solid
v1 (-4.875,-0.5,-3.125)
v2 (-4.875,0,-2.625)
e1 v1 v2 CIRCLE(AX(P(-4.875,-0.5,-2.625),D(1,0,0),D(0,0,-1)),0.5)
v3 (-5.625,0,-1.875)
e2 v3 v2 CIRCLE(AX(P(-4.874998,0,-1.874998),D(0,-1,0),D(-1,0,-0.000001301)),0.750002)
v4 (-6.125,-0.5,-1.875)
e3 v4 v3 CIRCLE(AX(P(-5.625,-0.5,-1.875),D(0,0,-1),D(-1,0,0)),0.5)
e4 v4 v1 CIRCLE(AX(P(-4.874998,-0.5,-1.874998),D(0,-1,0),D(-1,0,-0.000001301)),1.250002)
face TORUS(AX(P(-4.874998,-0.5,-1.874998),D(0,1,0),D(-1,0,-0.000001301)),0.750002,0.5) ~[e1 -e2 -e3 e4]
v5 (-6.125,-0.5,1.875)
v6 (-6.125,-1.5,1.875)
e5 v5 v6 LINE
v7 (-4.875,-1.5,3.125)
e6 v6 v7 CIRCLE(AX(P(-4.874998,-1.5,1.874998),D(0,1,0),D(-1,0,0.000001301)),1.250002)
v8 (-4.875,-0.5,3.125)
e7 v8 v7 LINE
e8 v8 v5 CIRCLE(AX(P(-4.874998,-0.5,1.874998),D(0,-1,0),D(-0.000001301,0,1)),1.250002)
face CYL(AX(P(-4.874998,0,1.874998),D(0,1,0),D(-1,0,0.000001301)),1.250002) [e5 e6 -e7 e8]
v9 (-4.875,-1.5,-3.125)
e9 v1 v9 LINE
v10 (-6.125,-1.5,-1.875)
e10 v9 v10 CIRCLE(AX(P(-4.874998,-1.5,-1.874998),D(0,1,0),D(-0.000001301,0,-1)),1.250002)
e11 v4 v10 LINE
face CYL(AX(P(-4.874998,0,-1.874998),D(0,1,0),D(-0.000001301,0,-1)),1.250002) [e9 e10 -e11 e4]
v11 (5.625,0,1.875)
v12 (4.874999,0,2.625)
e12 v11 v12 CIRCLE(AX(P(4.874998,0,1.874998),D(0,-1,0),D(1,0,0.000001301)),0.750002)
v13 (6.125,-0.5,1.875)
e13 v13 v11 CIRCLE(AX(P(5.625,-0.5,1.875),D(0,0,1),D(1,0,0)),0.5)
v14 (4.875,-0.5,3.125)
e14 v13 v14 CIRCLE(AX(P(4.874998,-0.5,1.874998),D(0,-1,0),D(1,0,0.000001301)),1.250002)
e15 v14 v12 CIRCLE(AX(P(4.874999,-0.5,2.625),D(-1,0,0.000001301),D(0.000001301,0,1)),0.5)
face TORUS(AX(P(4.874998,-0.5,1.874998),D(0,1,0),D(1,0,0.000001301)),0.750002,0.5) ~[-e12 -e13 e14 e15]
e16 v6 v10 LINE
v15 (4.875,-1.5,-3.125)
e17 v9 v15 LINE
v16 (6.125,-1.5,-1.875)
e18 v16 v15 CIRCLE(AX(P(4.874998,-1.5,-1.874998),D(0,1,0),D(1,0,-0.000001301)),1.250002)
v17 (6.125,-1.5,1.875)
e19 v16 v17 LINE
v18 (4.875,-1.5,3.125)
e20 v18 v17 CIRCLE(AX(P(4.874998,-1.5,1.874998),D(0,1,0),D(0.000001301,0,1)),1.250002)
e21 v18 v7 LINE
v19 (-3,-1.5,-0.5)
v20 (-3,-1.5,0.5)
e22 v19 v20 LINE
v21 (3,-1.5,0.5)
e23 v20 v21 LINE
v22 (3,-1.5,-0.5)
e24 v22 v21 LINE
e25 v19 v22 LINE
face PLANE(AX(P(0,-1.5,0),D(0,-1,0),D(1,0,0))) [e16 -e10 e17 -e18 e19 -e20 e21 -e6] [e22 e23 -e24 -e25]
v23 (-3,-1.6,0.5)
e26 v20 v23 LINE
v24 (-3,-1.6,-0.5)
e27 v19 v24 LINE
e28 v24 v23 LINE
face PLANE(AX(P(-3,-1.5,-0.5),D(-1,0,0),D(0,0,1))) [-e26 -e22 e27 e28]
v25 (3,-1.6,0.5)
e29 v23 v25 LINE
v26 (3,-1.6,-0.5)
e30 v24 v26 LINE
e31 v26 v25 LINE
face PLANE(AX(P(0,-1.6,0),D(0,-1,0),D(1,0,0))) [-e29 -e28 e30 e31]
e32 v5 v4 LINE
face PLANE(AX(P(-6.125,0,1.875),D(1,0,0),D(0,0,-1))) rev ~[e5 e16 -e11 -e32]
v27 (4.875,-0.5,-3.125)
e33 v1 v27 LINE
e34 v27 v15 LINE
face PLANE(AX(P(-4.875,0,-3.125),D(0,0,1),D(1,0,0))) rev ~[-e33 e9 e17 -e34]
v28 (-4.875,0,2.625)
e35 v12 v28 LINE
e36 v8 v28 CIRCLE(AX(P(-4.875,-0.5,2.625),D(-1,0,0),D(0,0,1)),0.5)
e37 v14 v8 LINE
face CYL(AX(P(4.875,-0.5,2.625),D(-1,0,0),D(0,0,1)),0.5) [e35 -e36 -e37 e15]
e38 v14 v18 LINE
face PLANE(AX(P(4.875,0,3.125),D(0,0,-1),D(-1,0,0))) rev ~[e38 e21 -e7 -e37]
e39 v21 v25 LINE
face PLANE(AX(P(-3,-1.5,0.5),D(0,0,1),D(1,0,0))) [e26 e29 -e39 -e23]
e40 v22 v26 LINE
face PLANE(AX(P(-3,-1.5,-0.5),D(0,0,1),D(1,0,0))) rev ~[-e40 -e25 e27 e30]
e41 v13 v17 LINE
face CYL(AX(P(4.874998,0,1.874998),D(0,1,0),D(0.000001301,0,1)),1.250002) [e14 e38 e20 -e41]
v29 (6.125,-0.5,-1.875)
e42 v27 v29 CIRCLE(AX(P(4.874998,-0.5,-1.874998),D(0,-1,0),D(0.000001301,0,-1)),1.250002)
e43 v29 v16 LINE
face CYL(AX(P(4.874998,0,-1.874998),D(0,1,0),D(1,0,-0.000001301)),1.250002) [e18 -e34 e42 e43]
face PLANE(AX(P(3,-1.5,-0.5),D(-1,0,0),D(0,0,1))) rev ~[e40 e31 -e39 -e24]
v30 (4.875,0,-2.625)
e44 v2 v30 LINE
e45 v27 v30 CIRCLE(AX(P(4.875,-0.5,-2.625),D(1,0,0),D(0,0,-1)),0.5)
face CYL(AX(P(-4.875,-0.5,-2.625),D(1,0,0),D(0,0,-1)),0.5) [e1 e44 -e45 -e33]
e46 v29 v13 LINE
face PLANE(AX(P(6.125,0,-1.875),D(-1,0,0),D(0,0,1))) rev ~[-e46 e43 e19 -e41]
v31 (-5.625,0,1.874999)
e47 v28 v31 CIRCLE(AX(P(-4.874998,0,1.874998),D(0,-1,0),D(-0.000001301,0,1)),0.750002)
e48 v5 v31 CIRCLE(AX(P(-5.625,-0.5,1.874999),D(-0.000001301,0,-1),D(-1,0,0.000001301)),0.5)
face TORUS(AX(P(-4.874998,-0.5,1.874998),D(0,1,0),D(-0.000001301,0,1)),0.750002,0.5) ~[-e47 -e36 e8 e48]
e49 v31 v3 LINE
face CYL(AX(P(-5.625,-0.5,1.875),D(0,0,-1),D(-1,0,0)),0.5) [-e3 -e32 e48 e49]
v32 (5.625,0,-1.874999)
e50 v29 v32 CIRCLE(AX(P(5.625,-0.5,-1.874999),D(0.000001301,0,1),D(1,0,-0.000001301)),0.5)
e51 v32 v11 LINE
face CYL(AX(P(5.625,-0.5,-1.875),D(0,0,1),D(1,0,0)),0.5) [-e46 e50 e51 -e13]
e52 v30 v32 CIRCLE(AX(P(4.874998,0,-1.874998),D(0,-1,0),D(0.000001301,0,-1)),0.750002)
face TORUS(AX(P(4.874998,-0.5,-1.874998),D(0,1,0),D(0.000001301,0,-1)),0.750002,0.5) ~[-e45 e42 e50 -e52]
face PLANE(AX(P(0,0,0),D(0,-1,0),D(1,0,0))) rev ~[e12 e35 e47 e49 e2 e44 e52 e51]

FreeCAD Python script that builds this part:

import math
import FreeCAD as App
import Part
import Sketcher
Q = App.Units.Quantity


def edges_at(feature, points):
    """Names of the edges that pass closest to the given points."""
    edges = feature.Shape.Edges
    near = lambda p: min(range(len(edges)), key=lambda i: edges[i].distToShape(Part.Vertex(*p))[0])
    return sorted({f"Edge{near(p) + 1}" for p in points})

doc = App.newDocument("Part")
body = doc.addObject("PartDesign::Body", "Body")

sketch1 = doc.addObject("Sketcher::SketchObject", "Sketch")
body.addObject(sketch1)
sketch1.AttachmentSupport = (doc.XZ_Plane, [""])
sketch1.MapMode = "FlatFace"
sketch1.addGeometry([
    Part.LineSegment(App.Vector(-6.1, 1.9, 0), App.Vector(-6.1, -1.9, 0)),
    Part.ArcOfCircle(Part.Circle(App.Vector(-4.9, -1.9, 0), App.Vector(0, 0, 1), 1.3), math.radians(-180), math.radians(-90)),
    Part.LineSegment(App.Vector(-4.9, -3.1, 0), App.Vector(4.9, -3.1, 0)),
    Part.ArcOfCircle(Part.Circle(App.Vector(4.9, -1.9, 0), App.Vector(0, 0, 1), 1.3), math.radians(-90), math.radians(0)),
    Part.LineSegment(App.Vector(6.1, -1.9, 0), App.Vector(6.1, 1.9, 0)),
    Part.ArcOfCircle(Part.Circle(App.Vector(4.9, 1.9, 0), App.Vector(0, 0, 1), 1.3), math.radians(0), math.radians(90)),
    Part.LineSegment(App.Vector(4.9, 3.1, 0), App.Vector(-4.9, 3.1, 0)),
    Part.ArcOfCircle(Part.Circle(App.Vector(-4.9, 1.9, 0), App.Vector(0, 0, 1), 1.3), math.radians(90), math.radians(180)),
], False)
sketch1.addConstraint([
    Sketcher.Constraint("Tangent", 0, 2, 1, 1),
    Sketcher.Constraint("Tangent", 1, 2, 2, 1),
    Sketcher.Constraint("Tangent", 2, 2, 3, 1),
    Sketcher.Constraint("Tangent", 3, 2, 4, 1),
    Sketcher.Constraint("Tangent", 4, 2, 5, 1),
    Sketcher.Constraint("Tangent", 5, 2, 6, 1),
    Sketcher.Constraint("Tangent", 6, 2, 7, 1),
    Sketcher.Constraint("Tangent", 7, 2, 0, 1),
    Sketcher.Constraint("Vertical", 0),
    Sketcher.Constraint("Horizontal", 2),
    Sketcher.Constraint("Vertical", 4),
    Sketcher.Constraint("Horizontal", 6),
    Sketcher.Constraint("Equal", 1, 3),
    Sketcher.Constraint("Equal", 3, 5),
    Sketcher.Constraint("Equal", 5, 7),
    Sketcher.Constraint("Symmetric", 1, 3, 5, 3, -1, 1),
    Sketcher.Constraint("Radius", 1, Q("1.250002 mm")),
    Sketcher.Constraint("DistanceX", 0, 2, 3, 3, Q("10.999998 mm")),
    Sketcher.Constraint("DistanceY", 1, 2, 7, 3, Q("4.999998 mm")),
])
pad1 = doc.addObject("PartDesign::Pad", "Pad")
body.addObject(pad1)
pad1.Profile = sketch1
pad1.Length = 1.5
doc.recompute()

fillet = doc.addObject("PartDesign::Fillet", "Fillet")
body.addObject(fillet)
fillet.Base = (pad1, edges_at(pad1, [(0, 0, -3.125)]))
fillet.Radius = 0.5

sketch2 = doc.addObject("Sketcher::SketchObject", "Sketch001")
body.addObject(sketch2)
sketch2.AttachmentSupport = (doc.XZ_Plane, [""])
sketch2.MapMode = "FlatFace"
sketch2.AttachmentOffset = App.Placement(App.Vector(0, 0, 1.5), App.Rotation())
sketch2.addGeometry([
    Part.LineSegment(App.Vector(-3, 0.5, 0), App.Vector(-3, -0.5, 0)),
    Part.LineSegment(App.Vector(-3, -0.5, 0), App.Vector(3, -0.5, 0)),
    Part.LineSegment(App.Vector(3, -0.5, 0), App.Vector(3, 0.5, 0)),
    Part.LineSegment(App.Vector(3, 0.5, 0), App.Vector(-3, 0.5, 0)),
], False)
sketch2.addConstraint([
    Sketcher.Constraint("Coincident", 0, 2, 1, 1),
    Sketcher.Constraint("Coincident", 1, 2, 2, 1),
    Sketcher.Constraint("Coincident", 2, 2, 3, 1),
    Sketcher.Constraint("Coincident", 3, 2, 0, 1),
    Sketcher.Constraint("Vertical", 0),
    Sketcher.Constraint("Horizontal", 1),
    Sketcher.Constraint("Vertical", 2),
    Sketcher.Constraint("Horizontal", 3),
    Sketcher.Constraint("Symmetric", 0, 2, 2, 2, -1, 1),
    Sketcher.Constraint("DistanceX", 1, 1, 1, 2, Q("6 mm")),
    Sketcher.Constraint("DistanceY", 0, 2, 0, 1, Q("1 mm")),
])
pad2 = doc.addObject("PartDesign::Pad", "Pad001")
body.addObject(pad2)
pad2.Profile = sketch2
pad2.Length = 0.1

doc.recompute()
